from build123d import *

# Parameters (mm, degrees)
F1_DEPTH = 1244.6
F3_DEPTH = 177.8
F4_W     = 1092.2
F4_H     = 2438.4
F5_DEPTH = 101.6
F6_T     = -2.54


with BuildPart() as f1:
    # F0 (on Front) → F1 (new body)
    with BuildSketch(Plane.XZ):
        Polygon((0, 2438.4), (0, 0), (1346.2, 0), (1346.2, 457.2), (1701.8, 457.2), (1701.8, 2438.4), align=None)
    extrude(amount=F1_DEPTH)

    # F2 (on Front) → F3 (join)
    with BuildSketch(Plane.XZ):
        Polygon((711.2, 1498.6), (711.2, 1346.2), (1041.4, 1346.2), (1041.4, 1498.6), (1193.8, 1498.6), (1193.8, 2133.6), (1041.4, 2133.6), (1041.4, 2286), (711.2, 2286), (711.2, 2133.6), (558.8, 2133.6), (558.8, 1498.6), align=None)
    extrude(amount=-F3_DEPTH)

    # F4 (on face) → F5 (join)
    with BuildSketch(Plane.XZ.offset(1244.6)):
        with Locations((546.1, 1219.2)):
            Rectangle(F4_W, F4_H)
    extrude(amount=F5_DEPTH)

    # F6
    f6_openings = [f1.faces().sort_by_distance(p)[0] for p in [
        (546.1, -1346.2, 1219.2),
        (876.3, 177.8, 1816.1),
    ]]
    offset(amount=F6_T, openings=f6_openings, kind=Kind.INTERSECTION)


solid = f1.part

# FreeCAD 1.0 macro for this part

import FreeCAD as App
import Part
import Sketcher
from FreeCAD import Vector
Q = App.Units.Quantity


def faces_at(feature, points):
    """Names of the faces that lie closest to the given points."""
    faces = feature.Shape.Faces
    near = lambda p: min(range(len(faces)), key=lambda i: faces[i].distToShape(Part.Vertex(*p))[0])
    return sorted({f"Face{near(p) + 1}" for p in points})


def add_polygon(sketch, points):
    """Adds a closed chain of lines whose ends are joined by coincident constraints."""
    first, n = sketch.GeometryCount, len(points)
    for a, b in zip(points, points[1:] + points[:1]):
        sketch.addGeometry(Part.LineSegment(App.Vector(*a, 0), App.Vector(*b, 0)), False)
    for i in range(n):
        sketch.addConstraint(Sketcher.Constraint("Coincident", first + i, 2, first + (i + 1) % n, 1))

doc = App.newDocument("Part")
body = doc.addObject("PartDesign::Body", "Body")

sketch1 = body.newObject("Sketcher::SketchObject", "Sketch")
sketch1.AttachmentSupport = (doc.getObject("XZ_Plane"), [""])
sketch1.MapMode = "FlatFace"
add_polygon(sketch1, [(0, 2438), (0, 0), (1346, 0), (1346, 457), (1702, 457), (1702, 2438)])
sketch1.addConstraint([
    Sketcher.Constraint("Vertical", 0),
    Sketcher.Constraint("Horizontal", 1),
    Sketcher.Constraint("Vertical", 2),
    Sketcher.Constraint("Horizontal", 3),
    Sketcher.Constraint("Vertical", 4),
    Sketcher.Constraint("Horizontal", 5),
    Sketcher.Constraint("Coincident", 0, 2, -1, 1),
    Sketcher.Constraint("DistanceX", 1, 1, 1, 2, Q("53 in")),
    Sketcher.Constraint("DistanceX", 3, 1, 3, 2, Q("14 in")),
    Sketcher.Constraint("DistanceY", 0, 2, 0, 1, Q("96 in")),
    Sketcher.Constraint("DistanceY", 2, 1, 2, 2, Q("18 in")),
])
pad1 = body.newObject("PartDesign::Pad", "Pad")
pad1.Profile = sketch1
pad1.Length = Q("49 in")

sketch2 = body.newObject("Sketcher::SketchObject", "Sketch001")
sketch2.AttachmentSupport = (doc.getObject("XZ_Plane"), [""])
sketch2.MapMode = "FlatFace"
add_polygon(sketch2, [(711, 1499), (711, 1346), (1041, 1346), (1041, 1499), (1194, 1499), (1194, 2134), (1041, 2134), (1041, 2286), (711, 2286), (711, 2134), (559, 2134), (559, 1499)])
sketch2.addConstraint([
    Sketcher.Constraint("Vertical", 0),
    Sketcher.Constraint("Horizontal", 1),
    Sketcher.Constraint("Vertical", 2),
    Sketcher.Constraint("Horizontal", 3),
    Sketcher.Constraint("Vertical", 4),
    Sketcher.Constraint("Horizontal", 5),
    Sketcher.Constraint("Vertical", 6),
    Sketcher.Constraint("Horizontal", 7),
    Sketcher.Constraint("Vertical", 8),
    Sketcher.Constraint("Horizontal", 9),
    Sketcher.Constraint("Vertical", 10),
    Sketcher.Constraint("Horizontal", 11),
    Sketcher.Constraint("Horizontal", 5, 2, 8, 2),
    Sketcher.Constraint("Horizontal", 3, 2, 10, 2),
    Sketcher.Constraint("Vertical", 2, 2, 5, 2),
    Sketcher.Constraint("Vertical", 0, 2, 7, 2),
    Sketcher.Constraint("Equal", 5, 9),
    Sketcher.Constraint("Equal", 11, 0),
    Sketcher.Constraint("Equal", 2, 6),
    Sketcher.Constraint("DistanceX", 1, 1, 1, 2, Q("13 in")),
    Sketcher.Constraint("DistanceX", 3, 1, 3, 2, Q("6 in")),
    Sketcher.Constraint("DistanceY", 4, 1, 4, 2, Q("25 in")),
    Sketcher.Constraint("DistanceX", -1, 1, 0, 2, Q("28 in")),
    Sketcher.Constraint("DistanceY", -1, 1, 0, 2, Q("53 in")),
])
pad2 = body.newObject("PartDesign::Pad", "Pad001")
pad2.Profile = sketch2
pad2.Length = Q("7 in")
pad2.Reversed = True

sketch3 = body.newObject("Sketcher::SketchObject", "Sketch002")
sketch3.AttachmentSupport = (doc.getObject("XZ_Plane"), [""])
sketch3.MapMode = "FlatFace"
sketch3.AttachmentOffset = App.Placement(Vector(0, 0, 49 * 25.4), App.Rotation())
add_polygon(sketch3, [(0, 2438), (0, 0), (1092, 0), (1092, 2438)])
sketch3.addConstraint([
    Sketcher.Constraint("Vertical", 0),
    Sketcher.Constraint("Horizontal", 1),
    Sketcher.Constraint("Vertical", 2),
    Sketcher.Constraint("Horizontal", 3),
    Sketcher.Constraint("Coincident", 0, 2, -1, 1),
    Sketcher.Constraint("DistanceX", 1, 1, 1, 2, Q("43 in")),
    Sketcher.Constraint("DistanceY", 0, 2, 0, 1, Q("96 in")),
])
pad3 = body.newObject("PartDesign::Pad", "Pad002")
pad3.Profile = sketch3
pad3.Length = Q("4 in")
doc.recompute()

thickness = body.newObject("PartDesign::Thickness", "Thickness")
thickness.Base = (pad3, faces_at(pad3, [(546.1, -1346.2, 1219.2), (876.3, 177.8, 1816.1)]))
thickness.Value = Q("0.1 in")
thickness.Reversed = True
thickness.Join = "Intersection"

doc.recompute()
